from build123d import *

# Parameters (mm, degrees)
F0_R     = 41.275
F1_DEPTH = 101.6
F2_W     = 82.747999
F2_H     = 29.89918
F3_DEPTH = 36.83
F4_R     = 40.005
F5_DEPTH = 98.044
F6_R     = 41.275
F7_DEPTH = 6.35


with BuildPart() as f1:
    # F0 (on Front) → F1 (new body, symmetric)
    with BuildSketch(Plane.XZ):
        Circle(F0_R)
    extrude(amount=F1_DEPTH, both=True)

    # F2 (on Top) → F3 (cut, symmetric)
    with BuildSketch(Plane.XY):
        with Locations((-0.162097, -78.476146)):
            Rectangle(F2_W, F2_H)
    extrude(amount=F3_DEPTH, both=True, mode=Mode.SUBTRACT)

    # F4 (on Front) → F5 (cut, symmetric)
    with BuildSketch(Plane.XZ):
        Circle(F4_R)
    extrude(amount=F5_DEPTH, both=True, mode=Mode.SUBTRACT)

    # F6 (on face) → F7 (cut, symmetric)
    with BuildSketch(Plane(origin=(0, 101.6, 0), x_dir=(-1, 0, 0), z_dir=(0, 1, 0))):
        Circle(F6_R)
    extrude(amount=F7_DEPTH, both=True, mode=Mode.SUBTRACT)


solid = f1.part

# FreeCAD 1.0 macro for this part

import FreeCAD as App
import Part
import Sketcher

V = App.Vector
Q = App.Units.Quantity


def add_polygon(sketch, points):
    """Adds a closed chain of lines whose ends are joined by coincident constraints."""
    first, n = sketch.GeometryCount, len(points)
    for a, b in zip(points, points[1:] + points[:1]):
        sketch.addGeometry(Part.LineSegment(App.Vector(*a, 0), App.Vector(*b, 0)), False)
    for i in range(n):
        sketch.addConstraint(Sketcher.Constraint("Coincident", first + i, 2, first + (i + 1) % n, 1))

doc = App.newDocument("Part")
body = doc.addObject("PartDesign::Body", "Body")

# Sketch on XZ plane
sketch1 = body.newObject("Sketcher::SketchObject", "Sketch")
sketch1.AttachmentSupport = (doc.getObject("XZ_Plane"), [""])
sketch1.MapMode = "FlatFace"
sketch1.addGeometry(Part.Circle(V(0, 0, 0), V(0, 0, 1), 41), False)
sketch1.addConstraint([
    Sketcher.Constraint("Coincident", 0, 3, -1, 1),
    Sketcher.Constraint("Diameter", 0, Q("3.25 in")),
])
pad1 = body.newObject("PartDesign::Pad", "Pad")
pad1.Profile = sketch1
pad1.Length = Q("8 in")
pad1.Midplane = True

# Sketch on XY plane
sketch2 = body.newObject("Sketcher::SketchObject", "Sketch001")
sketch2.AttachmentSupport = (doc.getObject("XY_Plane"), [""])
sketch2.MapMode = "FlatFace"
add_polygon(sketch2, [(-42, -64), (-42, -93), (41, -93), (41, -64)])  # lines 0-3
sketch2.addConstraint([
    Sketcher.Constraint("Vertical", 0),
    Sketcher.Constraint("Horizontal", 1),
    Sketcher.Constraint("Vertical", 2),
    Sketcher.Constraint("Horizontal", 3),
    Sketcher.Constraint("DistanceX", 1, 1, 1, 2, 82.747999),
    Sketcher.Constraint("DistanceY", 0, 2, 0, 1, 29.89918),
    Sketcher.Constraint("DistanceX", 0, 2, -1, 1, 41.536096),
    Sketcher.Constraint("DistanceY", 0, 2, -1, 1, 93.425736),
])
pocket1 = body.newObject("PartDesign::Pocket", "Pocket")
pocket1.Profile = sketch2
pocket1.Length = Q("2.9 in")
pocket1.Midplane = True

# Sketch on XZ plane
sketch3 = body.newObject("Sketcher::SketchObject", "Sketch002")
sketch3.AttachmentSupport = (doc.getObject("XZ_Plane"), [""])
sketch3.MapMode = "FlatFace"
sketch3.addGeometry(Part.Circle(V(0, 0, 0), V(0, 0, 1), 40), False)
sketch3.addConstraint([
    Sketcher.Constraint("Coincident", 0, 3, -1, 1),
    Sketcher.Constraint("Diameter", 0, Q("3.15 in")),
])
pocket2 = body.newObject("PartDesign::Pocket", "Pocket001")
pocket2.Profile = sketch3
pocket2.Length = Q("7.72 in")
pocket2.Midplane = True

# Sketch on XZ plane
sketch4 = body.newObject("Sketcher::SketchObject", "Sketch003")
sketch4.AttachmentSupport = (doc.getObject("XZ_Plane"), [""])
sketch4.MapMode = "FlatFace"
sketch4.AttachmentOffset = App.Placement(V(0, 0, -4 * 25.4), App.Rotation())
sketch4.addGeometry(Part.Circle(V(0, 0, 0), V(0, 0, 1), 41), False)
sketch4.addConstraint([
    Sketcher.Constraint("Coincident", 0, 3, -1, 1),
    Sketcher.Constraint("Diameter", 0, Q("3.25 in")),
])
pocket3 = body.newObject("PartDesign::Pocket", "Pocket002")
pocket3.Profile = sketch4
pocket3.Length = Q("0.5 in")
pocket3.Midplane = True

doc.recompute()
